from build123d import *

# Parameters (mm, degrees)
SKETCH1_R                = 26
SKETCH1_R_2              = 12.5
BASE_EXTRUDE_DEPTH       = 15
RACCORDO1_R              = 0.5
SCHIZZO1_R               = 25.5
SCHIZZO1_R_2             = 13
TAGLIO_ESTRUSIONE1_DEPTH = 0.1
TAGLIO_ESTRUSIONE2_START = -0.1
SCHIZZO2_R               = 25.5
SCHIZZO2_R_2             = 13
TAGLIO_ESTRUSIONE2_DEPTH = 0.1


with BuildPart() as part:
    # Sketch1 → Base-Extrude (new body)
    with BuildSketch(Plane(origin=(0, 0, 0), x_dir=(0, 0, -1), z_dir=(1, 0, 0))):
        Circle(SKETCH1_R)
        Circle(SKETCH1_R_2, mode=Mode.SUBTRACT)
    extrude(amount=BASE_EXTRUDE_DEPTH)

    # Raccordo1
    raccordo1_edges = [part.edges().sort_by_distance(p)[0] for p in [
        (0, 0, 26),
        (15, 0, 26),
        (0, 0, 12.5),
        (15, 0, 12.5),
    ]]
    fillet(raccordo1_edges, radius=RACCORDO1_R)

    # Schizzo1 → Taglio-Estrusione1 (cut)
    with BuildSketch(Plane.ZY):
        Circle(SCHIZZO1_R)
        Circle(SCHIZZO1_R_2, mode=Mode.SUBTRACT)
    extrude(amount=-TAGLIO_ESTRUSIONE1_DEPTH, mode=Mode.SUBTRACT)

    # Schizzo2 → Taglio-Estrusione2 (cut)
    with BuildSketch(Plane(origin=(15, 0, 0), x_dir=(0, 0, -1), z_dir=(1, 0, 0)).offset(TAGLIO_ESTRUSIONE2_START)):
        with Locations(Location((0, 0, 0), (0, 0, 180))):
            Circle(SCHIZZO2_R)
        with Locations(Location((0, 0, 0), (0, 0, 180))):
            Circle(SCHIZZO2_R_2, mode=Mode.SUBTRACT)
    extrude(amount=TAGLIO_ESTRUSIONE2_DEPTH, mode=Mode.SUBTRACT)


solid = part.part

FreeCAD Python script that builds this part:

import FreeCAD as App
import Part
import Sketcher
Q = App.Units.Quantity


def edges_at(feature, points):
    """Names of the edges that pass closest to the given points."""
    edges = feature.Shape.Edges
    near = lambda p: min(range(len(edges)), key=lambda i: edges[i].distToShape(Part.Vertex(*p))[0])
    return sorted({f"Edge{near(p) + 1}" for p in points})

doc = App.newDocument("Part")
body = doc.addObject("PartDesign::Body", "Body")

# Sketch on YZ plane
sketch1 = body.newObject("Sketcher::SketchObject", "Sketch")
sketch1.AttachmentSupport = (doc.getObject("YZ_Plane"), [""])
sketch1.MapMode = "FlatFace"
sketch1.addGeometry(Part.Circle(App.Vector(0, 0, 0), App.Vector(0, 0, 1), 26), False)
sketch1.addGeometry(Part.Circle(App.Vector(0, 0, 0), App.Vector(0, 0, 1), 12.5), False)
sketch1.addConstraint(Sketcher.Constraint("Coincident", 0, 3, -1, 1))
sketch1.addConstraint(Sketcher.Constraint("Coincident", 1, 3, -1, 1))
sketch1.addConstraint(Sketcher.Constraint("Diameter", 0, Q("52 mm")))
sketch1.addConstraint(Sketcher.Constraint("Diameter", 1, Q("25 mm")))
pad1 = body.newObject("PartDesign::Pad", "Pad")
pad1.Profile = sketch1
pad1.Length = 15
doc.recompute()

fillet = body.newObject("PartDesign::Fillet", "Fillet")
fillet.Base = (pad1, edges_at(pad1, [
    (0, 0, 26),
    (15, 0, 26),
    (0, 0, 12.5),
    (15, 0, 12.5),
]))
fillet.Radius = 0.5

# Sketch on YZ plane
sketch2 = body.newObject("Sketcher::SketchObject", "Sketch001")
sketch2.AttachmentSupport = (doc.getObject("YZ_Plane"), [""])
sketch2.MapMode = "FlatFace"
sketch2.addGeometry(Part.Circle(App.Vector(0, 0, 0), App.Vector(0, 0, 1), 25.5), False)
sketch2.addGeometry(Part.Circle(App.Vector(0, 0, 0), App.Vector(0, 0, 1), 13), False)
sketch2.addConstraint(Sketcher.Constraint("Coincident", 0, 3, -1, 1))
sketch2.addConstraint(Sketcher.Constraint("Coincident", 1, 3, -1, 1))
sketch2.addConstraint(Sketcher.Constraint("Diameter", 0, Q("51 mm")))
sketch2.addConstraint(Sketcher.Constraint("Diameter", 1, Q("26 mm")))
pocket1 = body.newObject("PartDesign::Pocket", "Pocket")
pocket1.Profile = sketch2
pocket1.Length = 0.1
pocket1.Reversed = True

# Sketch on YZ plane
sketch3 = body.newObject("Sketcher::SketchObject", "Sketch002")
sketch3.AttachmentSupport = (doc.getObject("YZ_Plane"), [""])
sketch3.MapMode = "FlatFace"
sketch3.AttachmentOffset = App.Placement(App.Vector(0, 0, 14.9), App.Rotation())
sketch3.addGeometry(Part.Circle(App.Vector(0, 0, 0), App.Vector(0, 0, 1), 25.5), False)
sketch3.addGeometry(Part.Circle(App.Vector(0, 0, 0), App.Vector(0, 0, 1), 13), False)
sketch3.addConstraint(Sketcher.Constraint("Coincident", 0, 3, -1, 1))
sketch3.addConstraint(Sketcher.Constraint("Coincident", 1, 3, -1, 1))
sketch3.addConstraint(Sketcher.Constraint("Diameter", 0, Q("51 mm")))
sketch3.addConstraint(Sketcher.Constraint("Diameter", 1, Q("26 mm")))
pocket2 = body.newObject("PartDesign::Pocket", "Pocket001")
pocket2.Profile = sketch3
pocket2.Length = 0.1
pocket2.Reversed = True

doc.recompute()
